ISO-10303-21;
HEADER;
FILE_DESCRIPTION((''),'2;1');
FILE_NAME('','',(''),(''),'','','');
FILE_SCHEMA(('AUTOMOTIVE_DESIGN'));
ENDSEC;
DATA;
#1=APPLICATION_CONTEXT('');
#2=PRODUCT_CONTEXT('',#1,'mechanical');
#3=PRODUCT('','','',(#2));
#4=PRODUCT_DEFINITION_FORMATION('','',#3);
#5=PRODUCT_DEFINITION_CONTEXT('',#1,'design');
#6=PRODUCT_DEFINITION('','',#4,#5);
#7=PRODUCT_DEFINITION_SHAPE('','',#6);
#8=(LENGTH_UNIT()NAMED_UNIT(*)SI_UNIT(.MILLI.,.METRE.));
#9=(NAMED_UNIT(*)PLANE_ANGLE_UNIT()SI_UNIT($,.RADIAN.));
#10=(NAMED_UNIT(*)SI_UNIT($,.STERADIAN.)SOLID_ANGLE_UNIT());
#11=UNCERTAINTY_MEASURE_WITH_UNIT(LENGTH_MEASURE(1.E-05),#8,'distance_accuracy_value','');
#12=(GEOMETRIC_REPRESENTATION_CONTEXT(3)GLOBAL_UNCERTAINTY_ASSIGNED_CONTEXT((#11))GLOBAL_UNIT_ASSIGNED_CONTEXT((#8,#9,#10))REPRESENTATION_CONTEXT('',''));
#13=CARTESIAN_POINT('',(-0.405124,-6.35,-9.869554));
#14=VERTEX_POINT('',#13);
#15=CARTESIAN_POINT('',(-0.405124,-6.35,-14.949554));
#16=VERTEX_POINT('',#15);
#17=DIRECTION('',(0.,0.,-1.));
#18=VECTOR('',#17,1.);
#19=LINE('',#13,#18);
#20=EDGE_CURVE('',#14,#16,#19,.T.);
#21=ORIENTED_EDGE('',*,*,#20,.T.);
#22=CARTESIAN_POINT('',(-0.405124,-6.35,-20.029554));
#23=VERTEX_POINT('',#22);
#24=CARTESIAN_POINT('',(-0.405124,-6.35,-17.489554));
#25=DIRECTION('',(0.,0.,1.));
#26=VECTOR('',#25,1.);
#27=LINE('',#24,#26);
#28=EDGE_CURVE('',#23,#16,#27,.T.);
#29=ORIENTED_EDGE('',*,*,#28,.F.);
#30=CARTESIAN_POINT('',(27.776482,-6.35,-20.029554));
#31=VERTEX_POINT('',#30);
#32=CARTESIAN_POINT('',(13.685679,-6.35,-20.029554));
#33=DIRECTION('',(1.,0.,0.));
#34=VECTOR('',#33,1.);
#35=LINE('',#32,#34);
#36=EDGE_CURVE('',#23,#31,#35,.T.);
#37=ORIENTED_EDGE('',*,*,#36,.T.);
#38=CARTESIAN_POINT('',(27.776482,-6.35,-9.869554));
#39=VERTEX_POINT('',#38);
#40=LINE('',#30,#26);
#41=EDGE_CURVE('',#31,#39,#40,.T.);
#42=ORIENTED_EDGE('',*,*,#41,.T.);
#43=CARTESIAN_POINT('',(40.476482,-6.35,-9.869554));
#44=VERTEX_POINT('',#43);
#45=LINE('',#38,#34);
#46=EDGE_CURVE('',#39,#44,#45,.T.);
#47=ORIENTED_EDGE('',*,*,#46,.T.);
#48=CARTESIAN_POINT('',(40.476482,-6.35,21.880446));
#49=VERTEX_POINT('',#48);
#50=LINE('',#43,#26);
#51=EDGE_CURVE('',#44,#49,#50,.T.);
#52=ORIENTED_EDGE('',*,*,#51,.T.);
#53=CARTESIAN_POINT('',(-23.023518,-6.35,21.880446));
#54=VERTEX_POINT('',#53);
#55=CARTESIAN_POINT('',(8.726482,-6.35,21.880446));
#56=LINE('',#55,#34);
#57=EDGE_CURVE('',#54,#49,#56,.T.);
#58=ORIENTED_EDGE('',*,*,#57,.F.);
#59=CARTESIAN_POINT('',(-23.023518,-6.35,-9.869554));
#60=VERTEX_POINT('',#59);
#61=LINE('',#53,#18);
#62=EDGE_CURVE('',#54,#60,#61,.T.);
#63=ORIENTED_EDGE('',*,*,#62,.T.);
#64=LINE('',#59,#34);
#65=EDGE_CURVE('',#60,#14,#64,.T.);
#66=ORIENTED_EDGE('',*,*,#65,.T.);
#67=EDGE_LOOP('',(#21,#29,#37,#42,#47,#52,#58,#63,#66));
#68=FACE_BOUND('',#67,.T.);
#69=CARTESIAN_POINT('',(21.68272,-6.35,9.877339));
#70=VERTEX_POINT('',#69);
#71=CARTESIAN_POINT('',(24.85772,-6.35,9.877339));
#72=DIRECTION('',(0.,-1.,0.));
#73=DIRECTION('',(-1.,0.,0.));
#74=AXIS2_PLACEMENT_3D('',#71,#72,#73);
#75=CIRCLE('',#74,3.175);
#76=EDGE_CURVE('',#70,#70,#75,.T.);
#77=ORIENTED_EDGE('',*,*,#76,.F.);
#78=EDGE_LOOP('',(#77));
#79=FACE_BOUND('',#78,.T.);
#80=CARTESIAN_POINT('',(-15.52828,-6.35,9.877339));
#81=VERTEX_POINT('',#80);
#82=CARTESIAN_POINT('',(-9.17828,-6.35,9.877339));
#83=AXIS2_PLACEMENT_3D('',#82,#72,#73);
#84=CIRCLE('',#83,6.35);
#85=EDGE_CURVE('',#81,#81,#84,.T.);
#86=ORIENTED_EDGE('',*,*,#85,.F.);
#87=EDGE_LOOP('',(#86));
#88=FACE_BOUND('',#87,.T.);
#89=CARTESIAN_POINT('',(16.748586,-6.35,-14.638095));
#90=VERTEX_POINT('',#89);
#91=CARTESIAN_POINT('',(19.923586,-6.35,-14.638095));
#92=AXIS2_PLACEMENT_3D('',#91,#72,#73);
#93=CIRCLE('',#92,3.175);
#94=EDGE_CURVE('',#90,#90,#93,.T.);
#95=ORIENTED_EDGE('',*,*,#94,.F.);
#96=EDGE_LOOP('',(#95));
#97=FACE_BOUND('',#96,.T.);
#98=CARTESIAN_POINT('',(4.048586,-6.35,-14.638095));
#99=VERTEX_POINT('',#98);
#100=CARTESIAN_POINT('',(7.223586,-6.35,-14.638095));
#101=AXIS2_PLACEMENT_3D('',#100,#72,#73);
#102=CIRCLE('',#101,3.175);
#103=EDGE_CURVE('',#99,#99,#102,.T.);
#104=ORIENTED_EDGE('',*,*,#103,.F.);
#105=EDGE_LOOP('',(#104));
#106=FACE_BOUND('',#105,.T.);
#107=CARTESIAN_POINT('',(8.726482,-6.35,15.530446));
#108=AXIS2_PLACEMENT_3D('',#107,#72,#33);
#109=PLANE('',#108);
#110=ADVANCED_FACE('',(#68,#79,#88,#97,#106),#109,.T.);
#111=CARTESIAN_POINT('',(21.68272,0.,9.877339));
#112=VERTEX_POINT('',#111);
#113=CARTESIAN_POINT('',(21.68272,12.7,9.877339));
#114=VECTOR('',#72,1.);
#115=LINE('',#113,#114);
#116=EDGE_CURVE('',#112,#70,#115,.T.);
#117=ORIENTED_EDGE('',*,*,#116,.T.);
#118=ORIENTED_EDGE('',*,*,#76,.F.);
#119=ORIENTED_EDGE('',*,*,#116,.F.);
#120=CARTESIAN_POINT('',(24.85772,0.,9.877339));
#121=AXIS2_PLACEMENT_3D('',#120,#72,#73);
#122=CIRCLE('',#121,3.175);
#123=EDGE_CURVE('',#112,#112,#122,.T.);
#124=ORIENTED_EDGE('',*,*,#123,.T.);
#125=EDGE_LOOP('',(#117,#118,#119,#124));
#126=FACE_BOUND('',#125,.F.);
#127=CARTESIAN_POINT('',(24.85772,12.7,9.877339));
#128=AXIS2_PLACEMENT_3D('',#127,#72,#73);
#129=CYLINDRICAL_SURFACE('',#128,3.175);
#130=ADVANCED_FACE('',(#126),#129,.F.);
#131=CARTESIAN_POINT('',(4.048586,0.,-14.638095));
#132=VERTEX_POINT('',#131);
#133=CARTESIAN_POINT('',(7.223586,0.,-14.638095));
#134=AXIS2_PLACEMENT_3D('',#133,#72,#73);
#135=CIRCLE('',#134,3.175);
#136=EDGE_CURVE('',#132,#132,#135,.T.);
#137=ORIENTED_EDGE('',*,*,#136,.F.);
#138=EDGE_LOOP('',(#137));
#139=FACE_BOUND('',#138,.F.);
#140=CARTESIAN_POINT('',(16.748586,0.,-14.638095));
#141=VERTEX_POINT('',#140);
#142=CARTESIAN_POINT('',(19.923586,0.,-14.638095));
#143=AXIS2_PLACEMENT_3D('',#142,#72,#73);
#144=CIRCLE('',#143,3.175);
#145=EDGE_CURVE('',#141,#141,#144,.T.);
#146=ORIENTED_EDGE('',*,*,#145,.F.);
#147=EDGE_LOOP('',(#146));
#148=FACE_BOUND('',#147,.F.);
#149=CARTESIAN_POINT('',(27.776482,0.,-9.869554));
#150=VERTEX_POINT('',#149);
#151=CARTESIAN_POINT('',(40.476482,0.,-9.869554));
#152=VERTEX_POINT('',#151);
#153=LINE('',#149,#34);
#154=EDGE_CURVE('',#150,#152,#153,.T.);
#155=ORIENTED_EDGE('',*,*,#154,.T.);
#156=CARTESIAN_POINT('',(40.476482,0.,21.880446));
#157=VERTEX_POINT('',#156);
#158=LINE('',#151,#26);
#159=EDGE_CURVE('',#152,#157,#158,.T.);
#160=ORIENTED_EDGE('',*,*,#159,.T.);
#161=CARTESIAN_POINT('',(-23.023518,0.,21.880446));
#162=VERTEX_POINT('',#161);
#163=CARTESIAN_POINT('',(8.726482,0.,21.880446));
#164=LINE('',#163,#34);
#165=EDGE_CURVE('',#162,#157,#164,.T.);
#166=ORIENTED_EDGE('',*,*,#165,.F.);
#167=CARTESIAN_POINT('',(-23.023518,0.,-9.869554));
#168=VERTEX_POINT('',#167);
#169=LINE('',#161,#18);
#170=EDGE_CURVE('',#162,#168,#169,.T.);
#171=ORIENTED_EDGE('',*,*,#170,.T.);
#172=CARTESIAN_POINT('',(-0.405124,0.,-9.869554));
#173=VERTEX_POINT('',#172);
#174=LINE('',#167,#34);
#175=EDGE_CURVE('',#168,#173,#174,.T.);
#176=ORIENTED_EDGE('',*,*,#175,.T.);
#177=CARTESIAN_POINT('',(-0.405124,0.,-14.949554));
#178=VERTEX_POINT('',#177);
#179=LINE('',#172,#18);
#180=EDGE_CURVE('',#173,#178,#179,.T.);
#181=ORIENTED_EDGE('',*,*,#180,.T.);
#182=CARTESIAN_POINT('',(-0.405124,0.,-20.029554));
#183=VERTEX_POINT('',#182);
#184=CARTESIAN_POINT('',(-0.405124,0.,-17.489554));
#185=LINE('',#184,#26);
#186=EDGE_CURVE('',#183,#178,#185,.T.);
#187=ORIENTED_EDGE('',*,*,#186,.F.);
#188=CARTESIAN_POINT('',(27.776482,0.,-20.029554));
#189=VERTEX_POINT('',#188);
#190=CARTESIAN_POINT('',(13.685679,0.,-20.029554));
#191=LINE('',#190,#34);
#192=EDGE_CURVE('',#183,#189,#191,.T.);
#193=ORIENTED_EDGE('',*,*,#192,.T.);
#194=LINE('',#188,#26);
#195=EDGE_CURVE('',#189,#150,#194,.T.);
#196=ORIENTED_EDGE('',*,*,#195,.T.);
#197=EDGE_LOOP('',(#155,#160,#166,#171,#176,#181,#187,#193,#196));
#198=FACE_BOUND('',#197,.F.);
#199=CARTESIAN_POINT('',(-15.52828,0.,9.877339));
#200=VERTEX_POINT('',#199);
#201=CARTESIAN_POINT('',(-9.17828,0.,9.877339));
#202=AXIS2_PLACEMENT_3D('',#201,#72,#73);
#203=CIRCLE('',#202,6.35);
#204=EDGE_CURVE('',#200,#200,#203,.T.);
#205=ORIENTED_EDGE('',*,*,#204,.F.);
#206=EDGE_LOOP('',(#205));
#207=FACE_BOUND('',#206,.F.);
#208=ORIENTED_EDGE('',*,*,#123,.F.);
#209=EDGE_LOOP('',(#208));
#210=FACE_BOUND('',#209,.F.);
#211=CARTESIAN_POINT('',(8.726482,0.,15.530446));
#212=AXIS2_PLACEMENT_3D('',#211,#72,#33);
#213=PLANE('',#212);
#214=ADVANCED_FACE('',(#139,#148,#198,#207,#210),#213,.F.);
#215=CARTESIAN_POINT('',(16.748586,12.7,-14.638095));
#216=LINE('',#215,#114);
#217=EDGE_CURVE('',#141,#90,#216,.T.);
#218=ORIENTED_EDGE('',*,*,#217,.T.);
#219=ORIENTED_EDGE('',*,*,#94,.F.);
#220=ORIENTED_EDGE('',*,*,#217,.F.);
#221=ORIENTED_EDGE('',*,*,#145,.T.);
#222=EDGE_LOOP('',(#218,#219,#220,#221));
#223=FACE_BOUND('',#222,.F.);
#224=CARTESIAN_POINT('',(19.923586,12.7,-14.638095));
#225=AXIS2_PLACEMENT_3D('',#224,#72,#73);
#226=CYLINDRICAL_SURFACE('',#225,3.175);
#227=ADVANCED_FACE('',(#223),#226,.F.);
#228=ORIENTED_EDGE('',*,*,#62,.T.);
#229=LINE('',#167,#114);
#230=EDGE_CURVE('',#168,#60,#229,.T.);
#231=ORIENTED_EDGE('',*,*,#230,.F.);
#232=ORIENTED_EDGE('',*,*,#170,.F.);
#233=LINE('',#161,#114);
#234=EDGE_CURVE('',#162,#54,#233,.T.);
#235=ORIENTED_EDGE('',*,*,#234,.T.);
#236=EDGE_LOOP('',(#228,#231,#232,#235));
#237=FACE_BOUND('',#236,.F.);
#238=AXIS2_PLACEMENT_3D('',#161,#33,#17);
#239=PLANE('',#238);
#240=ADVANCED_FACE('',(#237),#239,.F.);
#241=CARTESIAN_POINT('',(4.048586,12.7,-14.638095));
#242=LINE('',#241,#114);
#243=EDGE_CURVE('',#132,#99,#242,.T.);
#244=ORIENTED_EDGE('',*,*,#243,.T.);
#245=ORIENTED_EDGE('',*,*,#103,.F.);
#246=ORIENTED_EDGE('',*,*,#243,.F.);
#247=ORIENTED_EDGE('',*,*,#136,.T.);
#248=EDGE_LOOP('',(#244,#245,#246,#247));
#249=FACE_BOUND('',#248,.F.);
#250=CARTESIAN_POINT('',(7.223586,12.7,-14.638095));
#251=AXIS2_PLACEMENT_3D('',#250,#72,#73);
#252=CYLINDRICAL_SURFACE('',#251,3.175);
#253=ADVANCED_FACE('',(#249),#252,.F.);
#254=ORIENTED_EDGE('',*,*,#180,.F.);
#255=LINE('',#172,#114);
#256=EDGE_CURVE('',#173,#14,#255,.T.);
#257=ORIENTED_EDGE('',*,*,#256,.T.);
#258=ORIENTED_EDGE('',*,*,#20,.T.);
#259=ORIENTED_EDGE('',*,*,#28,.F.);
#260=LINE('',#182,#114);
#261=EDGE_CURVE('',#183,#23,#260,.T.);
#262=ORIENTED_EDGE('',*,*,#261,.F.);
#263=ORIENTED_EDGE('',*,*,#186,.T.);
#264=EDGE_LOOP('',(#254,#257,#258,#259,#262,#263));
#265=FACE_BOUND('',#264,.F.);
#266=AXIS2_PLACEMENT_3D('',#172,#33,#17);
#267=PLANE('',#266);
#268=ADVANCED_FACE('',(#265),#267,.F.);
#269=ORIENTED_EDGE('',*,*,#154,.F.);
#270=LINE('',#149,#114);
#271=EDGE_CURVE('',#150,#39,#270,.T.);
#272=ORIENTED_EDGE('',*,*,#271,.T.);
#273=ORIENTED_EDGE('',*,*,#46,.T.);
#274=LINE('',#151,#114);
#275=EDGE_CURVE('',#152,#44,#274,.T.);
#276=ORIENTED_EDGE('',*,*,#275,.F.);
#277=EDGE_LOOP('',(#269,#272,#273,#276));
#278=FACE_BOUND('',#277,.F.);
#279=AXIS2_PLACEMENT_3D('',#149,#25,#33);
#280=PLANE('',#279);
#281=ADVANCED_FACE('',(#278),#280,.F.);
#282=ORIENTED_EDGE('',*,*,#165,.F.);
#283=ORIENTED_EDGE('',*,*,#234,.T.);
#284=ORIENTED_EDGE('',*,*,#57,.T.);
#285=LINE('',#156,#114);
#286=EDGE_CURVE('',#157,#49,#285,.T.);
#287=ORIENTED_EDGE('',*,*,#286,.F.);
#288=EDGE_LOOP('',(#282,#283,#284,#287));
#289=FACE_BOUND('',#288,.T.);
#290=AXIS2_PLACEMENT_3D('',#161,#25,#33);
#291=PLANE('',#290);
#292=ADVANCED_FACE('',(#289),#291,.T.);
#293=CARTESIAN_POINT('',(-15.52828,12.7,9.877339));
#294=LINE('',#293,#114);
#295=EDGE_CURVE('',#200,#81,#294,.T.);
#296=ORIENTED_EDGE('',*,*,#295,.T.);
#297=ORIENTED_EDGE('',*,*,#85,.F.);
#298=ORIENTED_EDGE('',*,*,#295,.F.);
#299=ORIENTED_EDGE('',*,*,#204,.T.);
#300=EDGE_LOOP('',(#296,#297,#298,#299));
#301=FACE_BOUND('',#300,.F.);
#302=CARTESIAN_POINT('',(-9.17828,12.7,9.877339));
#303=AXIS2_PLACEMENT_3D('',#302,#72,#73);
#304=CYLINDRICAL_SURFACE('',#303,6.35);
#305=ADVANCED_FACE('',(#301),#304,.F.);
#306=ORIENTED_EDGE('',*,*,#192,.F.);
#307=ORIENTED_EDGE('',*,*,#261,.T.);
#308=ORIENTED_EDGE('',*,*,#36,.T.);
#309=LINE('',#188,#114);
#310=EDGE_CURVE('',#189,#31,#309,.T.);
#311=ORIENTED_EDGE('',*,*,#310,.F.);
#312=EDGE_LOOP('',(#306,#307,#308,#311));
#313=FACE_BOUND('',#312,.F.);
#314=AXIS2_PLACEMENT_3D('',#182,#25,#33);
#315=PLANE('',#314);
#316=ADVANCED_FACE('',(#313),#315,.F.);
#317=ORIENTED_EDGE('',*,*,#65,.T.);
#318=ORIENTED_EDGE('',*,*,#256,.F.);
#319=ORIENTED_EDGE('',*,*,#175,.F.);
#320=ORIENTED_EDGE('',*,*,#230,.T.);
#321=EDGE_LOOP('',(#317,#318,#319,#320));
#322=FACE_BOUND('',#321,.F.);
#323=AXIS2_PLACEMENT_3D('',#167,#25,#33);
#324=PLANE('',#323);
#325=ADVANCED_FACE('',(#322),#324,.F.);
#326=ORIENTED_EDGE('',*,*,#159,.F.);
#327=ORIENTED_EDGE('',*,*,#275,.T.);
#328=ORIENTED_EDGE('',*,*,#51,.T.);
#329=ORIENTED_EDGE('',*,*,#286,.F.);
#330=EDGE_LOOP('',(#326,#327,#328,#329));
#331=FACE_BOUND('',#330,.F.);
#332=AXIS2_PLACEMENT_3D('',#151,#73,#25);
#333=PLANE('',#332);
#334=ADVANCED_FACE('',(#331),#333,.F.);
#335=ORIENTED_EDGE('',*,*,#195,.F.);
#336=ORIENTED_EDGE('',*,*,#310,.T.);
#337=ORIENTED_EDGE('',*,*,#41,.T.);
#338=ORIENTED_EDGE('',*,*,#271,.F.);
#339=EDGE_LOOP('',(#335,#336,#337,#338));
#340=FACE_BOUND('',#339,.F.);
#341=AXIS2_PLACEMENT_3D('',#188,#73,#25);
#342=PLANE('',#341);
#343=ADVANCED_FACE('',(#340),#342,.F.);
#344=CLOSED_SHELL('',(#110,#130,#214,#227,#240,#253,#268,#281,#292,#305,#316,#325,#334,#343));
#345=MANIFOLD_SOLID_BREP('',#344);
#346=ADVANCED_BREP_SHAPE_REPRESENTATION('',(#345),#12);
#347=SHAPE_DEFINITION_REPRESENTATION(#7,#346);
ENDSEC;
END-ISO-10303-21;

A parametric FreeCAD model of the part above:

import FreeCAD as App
import Part
import Sketcher

V = App.Vector
Q = App.Units.Quantity


def add_polygon(sketch, points):
    """Adds a closed chain of lines whose ends are joined by coincident constraints."""
    first, n = sketch.GeometryCount, len(points)
    for a, b in zip(points, points[1:] + points[:1]):
        sketch.addGeometry(Part.LineSegment(App.Vector(*a, 0), App.Vector(*b, 0)), False)
    for i in range(n):
        sketch.addConstraint(Sketcher.Constraint("Coincident", first + i, 2, first + (i + 1) % n, 1))

doc = App.newDocument("Part")
body = doc.addObject("PartDesign::Body", "Body")

# Sketch on XZ plane
sketch1 = body.newObject("Sketcher::SketchObject", "Sketch")
sketch1.AttachmentSupport = (doc.getObject("XZ_Plane"), [""])
sketch1.MapMode = "FlatFace"
add_polygon(sketch1, [(-23.023518, 21.880446), (-23.023518, -9.869554), (-0.405124, -9.869554), (-0.405124, -14.949554), (-0.405124, -20.029554), (27.776482, -20.029554), (27.776482, -9.869554), (40.476482, -9.869554), (40.476482, 21.880446)])  # lines 0-8
sketch1.addConstraint([
    Sketcher.Constraint("Vertical", 0),
    Sketcher.Constraint("Horizontal", 1),
    Sketcher.Constraint("Vertical", 2),
    Sketcher.Constraint("Vertical", 3),
    Sketcher.Constraint("Horizontal", 4),
    Sketcher.Constraint("Vertical", 5),
    Sketcher.Constraint("Horizontal", 6),
    Sketcher.Constraint("Vertical", 7),
    Sketcher.Constraint("Horizontal", 8),
    Sketcher.Constraint("Horizontal", 1, 2, 5, 2),
    Sketcher.Constraint("Equal", 2, 3),
    Sketcher.Constraint("DistanceX", 6, 1, 6, 2, Q("0.5 in")),
    Sketcher.Constraint("DistanceX", 8, 2, 8, 1, Q("2.5 in")),
    Sketcher.Constraint("DistanceY", 2, 2, 2, 1, Q("0.2 in")),
    Sketcher.Constraint("DistanceY", 0, 2, 0, 1, Q("1.25 in")),
    Sketcher.Constraint("DistanceX", 1, 1, 1, 2, Q("22.618394 mm")),
    Sketcher.Constraint("DistanceX", 0, 2, -1, 1, Q("23.023518 mm")),
    Sketcher.Constraint("DistanceY", 0, 2, -1, 1, Q("9.869554 mm")),
])
pad1 = body.newObject("PartDesign::Pad", "Pad")
pad1.Profile = sketch1
pad1.Length = Q("0.25 in")

# Sketch on XZ plane
sketch2 = body.newObject("Sketcher::SketchObject", "Sketch001")
sketch2.AttachmentSupport = (doc.getObject("XZ_Plane"), [""])
sketch2.MapMode = "FlatFace"
sketch2.addGeometry(Part.Circle(V(-9.17828, 9.877339, 0), V(0, 0, 1), 6.35), False)
sketch2.addConstraint([
    Sketcher.Constraint("Diameter", 0, Q("0.5 in")),
    Sketcher.Constraint("DistanceX", 0, 3, -1, 1, Q("9.17828 mm")),
    Sketcher.Constraint("DistanceY", -1, 1, 0, 3, Q("9.877339 mm")),
])
doc.recompute()
hole = body.newObject("PartDesign::Hole", "Hole")
hole.Profile = sketch2
hole.ThreadType = "None"
hole.Diameter = Q("0.5 in")
hole.DepthType = "Dimension"
hole.Depth = Q("0.5 in")
hole.DrillPoint = "Angled"
hole.DrillPointAngle = 118
hole.Reversed = True

# Sketch on XZ plane
sketch3 = body.newObject("Sketcher::SketchObject", "Sketch002")
sketch3.AttachmentSupport = (doc.getObject("XZ_Plane"), [""])
sketch3.MapMode = "FlatFace"
sketch3.addGeometry(Part.Circle(V(24.85772, 9.877339, 0), V(0, 0, 1), 3.175), False)
sketch3.addConstraint([
    Sketcher.Constraint("Diameter", 0, Q("0.25 in")),
    Sketcher.Constraint("DistanceX", -1, 1, 0, 3, Q("24.85772 mm")),
    Sketcher.Constraint("DistanceY", -1, 1, 0, 3, Q("9.877339 mm")),
])
doc.recompute()
hole2 = body.newObject("PartDesign::Hole", "Hole001")
hole2.Profile = sketch3
hole2.ThreadType = "None"
hole2.Diameter = Q("0.25 in")
hole2.DepthType = "Dimension"
hole2.Depth = Q("0.5 in")
hole2.DrillPoint = "Angled"
hole2.DrillPointAngle = 118
hole2.Reversed = True

# Sketch on XZ plane
sketch4 = body.newObject("Sketcher::SketchObject", "Sketch003")
sketch4.AttachmentSupport = (doc.getObject("XZ_Plane"), [""])
sketch4.MapMode = "FlatFace"
sketch4.addGeometry([
    Part.Circle(V(7.223586, -14.638095, 0), V(0, 0, 1), 3.175),
    Part.Circle(V(19.923586, -14.638095, 0), V(0, 0, 1), 3.175),
], False)
sketch4.addConstraint([
    Sketcher.Constraint("Equal", 0, 1),
    Sketcher.Constraint("Horizontal", 0, 3, 1, 3),
    Sketcher.Constraint("Diameter", 0, Q("0.25 in")),
    Sketcher.Constraint("DistanceX", 0, 3, 1, 3, Q("0.5 in")),
    Sketcher.Constraint("DistanceX", -1, 1, 0, 3, Q("7.223586 mm")),
    Sketcher.Constraint("DistanceY", 0, 3, -1, 1, Q("14.638095 mm")),
])
doc.recompute()
hole3 = body.newObject("PartDesign::Hole", "Hole002")
hole3.Profile = sketch4
hole3.ThreadType = "None"
hole3.Diameter = Q("0.25 in")
hole3.DepthType = "Dimension"
hole3.Depth = Q("0.5 in")
hole3.DrillPoint = "Angled"
hole3.DrillPointAngle = 118
hole3.Reversed = True

doc.recompute()
